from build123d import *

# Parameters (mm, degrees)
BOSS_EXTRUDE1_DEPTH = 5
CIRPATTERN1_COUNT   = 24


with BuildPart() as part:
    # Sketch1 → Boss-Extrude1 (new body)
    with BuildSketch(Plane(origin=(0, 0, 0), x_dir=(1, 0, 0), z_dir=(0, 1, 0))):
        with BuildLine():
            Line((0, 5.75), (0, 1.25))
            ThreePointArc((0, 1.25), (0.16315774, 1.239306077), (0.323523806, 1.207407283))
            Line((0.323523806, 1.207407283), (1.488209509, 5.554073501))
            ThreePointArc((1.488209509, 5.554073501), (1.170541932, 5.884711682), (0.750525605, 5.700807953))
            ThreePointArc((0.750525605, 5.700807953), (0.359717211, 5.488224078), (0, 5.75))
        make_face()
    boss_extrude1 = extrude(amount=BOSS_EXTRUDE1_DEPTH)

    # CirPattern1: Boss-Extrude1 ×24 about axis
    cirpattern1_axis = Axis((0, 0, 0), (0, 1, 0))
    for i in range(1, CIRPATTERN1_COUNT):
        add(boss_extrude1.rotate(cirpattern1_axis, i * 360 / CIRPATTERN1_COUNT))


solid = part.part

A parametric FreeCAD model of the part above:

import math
import FreeCAD as App
import Part
import Sketcher
Q = App.Units.Quantity

doc = App.newDocument("Part")
body = doc.addObject("PartDesign::Body", "Body")

# Sketch on XZ plane
sketch1 = body.newObject("Sketcher::SketchObject", "Sketch")
sketch1.AttachmentSupport = (doc.getObject("XZ_Plane"), [""])
sketch1.MapMode = "FlatFace"
sketch1.addGeometry(Part.LineSegment(App.Vector(0, -5.75, 0), App.Vector(0, -1.25, 0)), False)
sketch1.addGeometry(Part.ArcOfCircle(Part.Circle(App.Vector(0, 0, 0), App.Vector(0, 0, 1), 1.25), math.radians(-90), math.radians(-75)), False)
sketch1.addGeometry(Part.LineSegment(App.Vector(0.323524, -1.207407, 0), App.Vector(1.48821, -5.554074, 0)), False)
sketch1.addGeometry(Part.ArcOfCircle(Part.Circle(App.Vector(1.092363, -5.491677, 0), App.Vector(0, 0, 1), 0.400735), math.radians(-148.542319), math.radians(-8.957681)), False)
sketch1.addGeometry(Part.ArcOfCircle(Part.Circle(App.Vector(0.386948, -5.903682, 0), App.Vector(0, 0, 1), 0.416349), math.radians(29.161214), math.radians(158.338786)), False)
sketch1.addConstraint(Sketcher.Constraint("Coincident", 0, 2, 1, 1))
sketch1.addConstraint(Sketcher.Constraint("Coincident", 1, 2, 2, 1))
sketch1.addConstraint(Sketcher.Constraint("Coincident", 2, 2, 3, 2))
sketch1.addConstraint(Sketcher.Constraint("Coincident", 3, 1, 4, 1))
sketch1.addConstraint(Sketcher.Constraint("Coincident", 4, 2, 0, 1))
sketch1.addConstraint(Sketcher.Constraint("Vertical", 0))
sketch1.addConstraint(Sketcher.Constraint("Coincident", 1, 3, -1, 1))
sketch1.addConstraint(Sketcher.Constraint("PointOnObject", 0, 2, -2))
sketch1.addConstraint(Sketcher.Constraint("Angle", 2, Q("-75 deg")))
sketch1.addConstraint(Sketcher.Constraint("Radius", 1, Q("1.25 mm")))
sketch1.addConstraint(Sketcher.Constraint("DistanceY", 0, 1, 0, 2, Q("4.5 mm")))
sketch1.addConstraint(Sketcher.Constraint("Distance", 2, Q("4.5 mm")))
sketch1.addConstraint(Sketcher.Constraint("Radius", 4, Q("0.416349 mm")))
sketch1.addConstraint(Sketcher.Constraint("Radius", 3, Q("0.400735 mm")))
sketch1.addConstraint(Sketcher.Constraint("DistanceX", 1, 2, 3, 1, Q("0.427002 mm")))
sketch1.addConstraint(Sketcher.Constraint("DistanceY", 3, 1, 1, 2, Q("4.493401 mm")))
sketch1.addConstraint(Sketcher.Constraint("DistanceY", 4, 3, -1, 1, Q("5.903682 mm")))
pad1 = body.newObject("PartDesign::Pad", "Pad")
pad1.Profile = sketch1
pad1.Length = 5
pad1.Reversed = True
doc.recompute()

polarpattern = body.newObject("PartDesign::PolarPattern", "PolarPattern")
polarpattern.Originals = [pad1]
polarpattern.Axis = (doc.getObject("Y_Axis"), [""])
polarpattern.Angle = 360
polarpattern.Occurrences = 24
body.Tip = polarpattern

doc.recompute()
